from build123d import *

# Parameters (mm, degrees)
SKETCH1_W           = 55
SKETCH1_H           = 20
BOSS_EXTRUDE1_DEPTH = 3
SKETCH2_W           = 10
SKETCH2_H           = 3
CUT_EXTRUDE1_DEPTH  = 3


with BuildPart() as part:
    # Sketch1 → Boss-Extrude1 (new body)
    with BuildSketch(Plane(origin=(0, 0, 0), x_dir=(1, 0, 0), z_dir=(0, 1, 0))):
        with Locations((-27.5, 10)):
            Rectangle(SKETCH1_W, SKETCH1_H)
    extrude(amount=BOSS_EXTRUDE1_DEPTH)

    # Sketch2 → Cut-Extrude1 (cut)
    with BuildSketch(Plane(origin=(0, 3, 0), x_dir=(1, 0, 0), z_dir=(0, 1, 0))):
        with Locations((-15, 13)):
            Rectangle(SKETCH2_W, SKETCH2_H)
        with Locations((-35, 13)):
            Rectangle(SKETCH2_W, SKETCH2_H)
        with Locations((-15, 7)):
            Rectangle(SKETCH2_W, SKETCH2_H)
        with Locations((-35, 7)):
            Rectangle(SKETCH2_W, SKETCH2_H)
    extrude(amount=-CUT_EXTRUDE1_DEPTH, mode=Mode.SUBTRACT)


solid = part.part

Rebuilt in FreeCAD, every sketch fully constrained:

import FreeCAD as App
import Part
import Sketcher

V = App.Vector


def add_polygon(sketch, points):
    """Adds a closed chain of lines whose ends are joined by coincident constraints."""
    first, n = sketch.GeometryCount, len(points)
    for a, b in zip(points, points[1:] + points[:1]):
        sketch.addGeometry(Part.LineSegment(App.Vector(*a, 0), App.Vector(*b, 0)), False)
    for i in range(n):
        sketch.addConstraint(Sketcher.Constraint("Coincident", first + i, 2, first + (i + 1) % n, 1))

doc = App.newDocument("Part")
body = doc.addObject("PartDesign::Body", "Body")

# Sketch on XZ plane
sketch1 = doc.addObject("Sketcher::SketchObject", "Sketch")
body.addObject(sketch1)
sketch1.AttachmentSupport = (doc.XZ_Plane, [""])
sketch1.MapMode = "FlatFace"
add_polygon(sketch1, [(-55, -20), (-55, 0), (0, 0), (0, -20)])  # lines 0-3
sketch1.addConstraint(Sketcher.Constraint("Vertical", 0))
sketch1.addConstraint(Sketcher.Constraint("Horizontal", 1))
sketch1.addConstraint(Sketcher.Constraint("Vertical", 2))
sketch1.addConstraint(Sketcher.Constraint("Horizontal", 3))
sketch1.addConstraint(Sketcher.Constraint("Coincident", 1, 2, -1, 1))
sketch1.addConstraint(Sketcher.Constraint("DistanceX", 1, 1, 1, 2, 55.0))
sketch1.addConstraint(Sketcher.Constraint("DistanceY", 0, 1, 0, 2, 20.0))
pad1 = doc.addObject("PartDesign::Pad", "Pad")
body.addObject(pad1)
pad1.Profile = sketch1
pad1.Length = 3
pad1.Reversed = True

# Sketch on XZ plane
sketch2 = doc.addObject("Sketcher::SketchObject", "Sketch001")
body.addObject(sketch2)
sketch2.AttachmentSupport = (doc.XZ_Plane, [""])
sketch2.MapMode = "FlatFace"
sketch2.AttachmentOffset = App.Placement(V(0, 0, -3), App.Rotation())
add_polygon(sketch2, [(-20, -14.5), (-20, -11.5), (-10, -11.5), (-10, -14.5)])  # lines 0-3
add_polygon(sketch2, [(-40, -14.5), (-40, -11.5), (-30, -11.5), (-30, -14.5)])  # lines 4-7
add_polygon(sketch2, [(-20, -8.5), (-20, -5.5), (-10, -5.5), (-10, -8.5)])  # lines 8-11
add_polygon(sketch2, [(-40, -8.5), (-40, -5.5), (-30, -5.5), (-30, -8.5)])  # lines 12-15
sketch2.addConstraint(Sketcher.Constraint("Vertical", 0))
sketch2.addConstraint(Sketcher.Constraint("Horizontal", 1))
sketch2.addConstraint(Sketcher.Constraint("Vertical", 2))
sketch2.addConstraint(Sketcher.Constraint("Horizontal", 3))
sketch2.addConstraint(Sketcher.Constraint("Vertical", 4))
sketch2.addConstraint(Sketcher.Constraint("Horizontal", 5))
sketch2.addConstraint(Sketcher.Constraint("Vertical", 6))
sketch2.addConstraint(Sketcher.Constraint("Horizontal", 7))
sketch2.addConstraint(Sketcher.Constraint("Vertical", 8))
sketch2.addConstraint(Sketcher.Constraint("Horizontal", 9))
sketch2.addConstraint(Sketcher.Constraint("Vertical", 10))
sketch2.addConstraint(Sketcher.Constraint("Horizontal", 11))
sketch2.addConstraint(Sketcher.Constraint("Vertical", 12))
sketch2.addConstraint(Sketcher.Constraint("Horizontal", 13))
sketch2.addConstraint(Sketcher.Constraint("Vertical", 14))
sketch2.addConstraint(Sketcher.Constraint("Horizontal", 15))
sketch2.addConstraint(Sketcher.Constraint("Horizontal", 1, 2, 4, 2))
sketch2.addConstraint(Sketcher.Constraint("Horizontal", 3, 2, 6, 2))
sketch2.addConstraint(Sketcher.Constraint("Horizontal", 9, 2, 12, 2))
sketch2.addConstraint(Sketcher.Constraint("Horizontal", 11, 2, 14, 2))
sketch2.addConstraint(Sketcher.Constraint("Vertical", 3, 2, 8, 2))
sketch2.addConstraint(Sketcher.Constraint("Vertical", 2, 2, 9, 2))
sketch2.addConstraint(Sketcher.Constraint("Vertical", 7, 2, 12, 2))
sketch2.addConstraint(Sketcher.Constraint("Vertical", 6, 2, 13, 2))
sketch2.addConstraint(Sketcher.Constraint("Equal", 3, 5))
sketch2.addConstraint(Sketcher.Constraint("Equal", 6, 8))
sketch2.addConstraint(Sketcher.Constraint("DistanceX", 1, 1, 1, 2, 10.0))
sketch2.addConstraint(Sketcher.Constraint("DistanceY", 0, 1, 0, 2, 3.0))
sketch2.addConstraint(Sketcher.Constraint("DistanceX", 0, 2, -1, 1, 20.0))
sketch2.addConstraint(Sketcher.Constraint("DistanceX", 4, 2, -1, 1, 40.0))
sketch2.addConstraint(Sketcher.Constraint("DistanceY", 0, 2, 8, 2, 6.0))
sketch2.addConstraint(Sketcher.Constraint("DistanceY", 0, 2, -1, 1, 11.5))
pocket1 = doc.addObject("PartDesign::Pocket", "Pocket")
body.addObject(pocket1)
pocket1.Profile = sketch2
pocket1.Length = 3
pocket1.Reversed = True

doc.recompute()
